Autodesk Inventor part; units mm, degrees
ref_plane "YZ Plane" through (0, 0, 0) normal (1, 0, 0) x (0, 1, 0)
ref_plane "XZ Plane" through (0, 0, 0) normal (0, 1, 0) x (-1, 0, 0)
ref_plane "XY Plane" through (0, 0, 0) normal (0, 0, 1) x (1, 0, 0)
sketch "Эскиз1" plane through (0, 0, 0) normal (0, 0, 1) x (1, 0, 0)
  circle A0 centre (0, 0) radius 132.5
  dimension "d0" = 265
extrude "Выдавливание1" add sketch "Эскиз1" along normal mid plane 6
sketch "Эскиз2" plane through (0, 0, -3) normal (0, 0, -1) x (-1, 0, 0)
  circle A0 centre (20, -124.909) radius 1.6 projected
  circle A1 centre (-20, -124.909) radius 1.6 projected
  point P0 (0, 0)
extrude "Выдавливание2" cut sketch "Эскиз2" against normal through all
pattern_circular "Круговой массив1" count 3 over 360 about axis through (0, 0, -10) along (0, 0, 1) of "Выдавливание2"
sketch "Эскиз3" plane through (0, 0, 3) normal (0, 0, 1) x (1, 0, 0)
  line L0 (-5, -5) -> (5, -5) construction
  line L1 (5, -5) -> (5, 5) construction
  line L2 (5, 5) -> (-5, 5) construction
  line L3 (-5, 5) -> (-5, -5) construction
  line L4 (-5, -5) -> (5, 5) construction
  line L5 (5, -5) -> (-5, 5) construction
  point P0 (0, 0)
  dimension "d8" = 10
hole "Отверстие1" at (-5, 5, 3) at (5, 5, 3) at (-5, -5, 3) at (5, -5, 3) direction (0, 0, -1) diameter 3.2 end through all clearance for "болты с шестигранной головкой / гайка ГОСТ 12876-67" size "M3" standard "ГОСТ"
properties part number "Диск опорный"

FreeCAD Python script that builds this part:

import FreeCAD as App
import Part
import Sketcher
from FreeCAD import Vector
Q = App.Units.Quantity

doc = App.newDocument("Part")
params = doc.addObject("Spreadsheet::Sheet", "Params")
for row, (alias, value) in enumerate([
    ("sketch1_diameter", "265 mm"),
    ("pad1_length", "6 mm"),
    ("sketch2_diameter", "3.2 mm"),
    ("sketch3_diameter", "3.2 mm"),
    ("hole_diameter", "3.2 mm"),
], start=1):
    params.set(f"A{row}", alias)
    params.set(f"B{row}", "=" + value)
    params.setAlias(f"B{row}", alias)

body = doc.addObject("PartDesign::Body", "Body")

# Sketch on XY plane
sketch1 = body.newObject("Sketcher::SketchObject", "Sketch")
sketch1.AttachmentSupport = (doc.getObject("XY_Plane"), [""])
sketch1.MapMode = "FlatFace"
sketch1.addGeometry(Part.Circle(Vector(0, 0, 0), Vector(0, 0, 1), 132), False)
sketch1.addConstraint([
    Sketcher.Constraint("Coincident", 0, 3, -1, 1),
    Sketcher.Constraint("Diameter", 0, Q("265 mm")),
])
sketch1.setExpression("Constraints[1]", "Params.sketch1_diameter")
pad1 = body.newObject("PartDesign::Pad", "Pad")
pad1.Profile = sketch1
pad1.setExpression("Length", "Params.pad1_length")
pad1.Midplane = True

# Sketch on XY plane
sketch2 = body.newObject("Sketcher::SketchObject", "Sketch001")
sketch2.AttachmentSupport = (doc.getObject("XY_Plane"), [""])
sketch2.MapMode = "FlatFace"
sketch2.AttachmentOffset = App.Placement(Vector(0, 0, -3), App.Rotation())
sketch2.addGeometry([
    Part.Circle(Vector(-20, -124.9, 0), Vector(0, 0, 1), 1.6),
    Part.Circle(Vector(20, -124.9, 0), Vector(0, 0, 1), 1.6),
], False)
sketch2.addConstraint([
    Sketcher.Constraint("Equal", 0, 1),
    Sketcher.Constraint("Symmetric", 0, 3, 1, 3, -2),
    Sketcher.Constraint("Diameter", 0, Q("3.2 mm")),
    Sketcher.Constraint("DistanceX", 0, 3, -1, 1, Q("20 mm")),
    Sketcher.Constraint("DistanceY", 0, 3, -1, 1, Q("124.909 mm")),
])
sketch2.setExpression("Constraints[2]", "Params.sketch2_diameter")
pocket1 = body.newObject("PartDesign::Pocket", "Pocket")
pocket1.Profile = sketch2
pocket1.Type = "ThroughAll"
pocket1.Reversed = True
doc.recompute()

polarpattern = body.newObject("PartDesign::PolarPattern", "PolarPattern")
polarpattern.Originals = [pocket1]
polarpattern.Axis = (doc.getObject("Z_Axis"), [""])
polarpattern.Angle = 360
polarpattern.Occurrences = 3
body.Tip = polarpattern

# Sketch on XY plane
sketch3 = body.newObject("Sketcher::SketchObject", "Sketch002")
sketch3.AttachmentSupport = (doc.getObject("XY_Plane"), [""])
sketch3.MapMode = "FlatFace"
sketch3.AttachmentOffset = App.Placement(Vector(0, 0, 3), App.Rotation())
sketch3.addGeometry([
    Part.Circle(Vector(-5, 5, 0), Vector(0, 0, 1), 1.6),
    Part.Circle(Vector(5, 5, 0), Vector(0, 0, 1), 1.6),
    Part.Circle(Vector(-5, -5, 0), Vector(0, 0, 1), 1.6),
    Part.Circle(Vector(5, -5, 0), Vector(0, 0, 1), 1.6),
], False)
sketch3.addConstraint([
    Sketcher.Constraint("Equal", 0, 1),
    Sketcher.Constraint("Equal", 1, 2),
    Sketcher.Constraint("Equal", 2, 3),
    Sketcher.Constraint("Symmetric", 1, 3, 2, 3, -1, 1),
    Sketcher.Constraint("Symmetric", 0, 3, 3, 3, -1, 1),
    Sketcher.Constraint("Symmetric", 0, 3, 1, 3, -2),
    Sketcher.Constraint("Diameter", 0, Q("3.2 mm")),
    Sketcher.Constraint("DistanceX", 0, 3, -1, 1, Q("5 mm")),
    Sketcher.Constraint("DistanceY", -1, 1, 0, 3, Q("5 mm")),
])
sketch3.setExpression("Constraints[6]", "Params.sketch3_diameter")
doc.recompute()
hole = body.newObject("PartDesign::Hole", "Hole")
hole.Profile = sketch3
hole.ThreadType = "None"
hole.setExpression("Diameter", "Params.hole_diameter")
hole.DepthType = "ThroughAll"

doc.recompute()
